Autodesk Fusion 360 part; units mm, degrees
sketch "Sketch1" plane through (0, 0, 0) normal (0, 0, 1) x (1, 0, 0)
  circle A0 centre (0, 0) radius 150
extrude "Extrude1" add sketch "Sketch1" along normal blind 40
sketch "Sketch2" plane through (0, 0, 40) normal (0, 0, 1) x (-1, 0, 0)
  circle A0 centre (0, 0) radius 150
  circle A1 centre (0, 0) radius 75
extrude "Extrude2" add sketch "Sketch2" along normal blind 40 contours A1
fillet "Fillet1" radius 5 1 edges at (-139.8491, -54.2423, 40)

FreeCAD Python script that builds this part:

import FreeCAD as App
import Part
import Sketcher
from FreeCAD import Vector


def edges_at(feature, points):
    """Names of the edges that pass closest to the given points."""
    edges = feature.Shape.Edges
    near = lambda p: min(range(len(edges)), key=lambda i: edges[i].distToShape(Part.Vertex(*p))[0])
    return sorted({f"Edge{near(p) + 1}" for p in points})

doc = App.newDocument("Part")
body = doc.addObject("PartDesign::Body", "Body")

sketch1 = doc.addObject("Sketcher::SketchObject", "Sketch")
body.addObject(sketch1)
sketch1.AttachmentSupport = (doc.XY_Plane, [""])
sketch1.MapMode = "FlatFace"
sketch1.addGeometry(Part.Circle(Vector(0, 0, 0), Vector(0, 0, 1), 150), False)
sketch1.addConstraint([
    Sketcher.Constraint("Coincident", 0, 3, -1, 1),
    Sketcher.Constraint("Diameter", 0, 300.0),
])
pad1 = doc.addObject("PartDesign::Pad", "Pad")
body.addObject(pad1)
pad1.Profile = sketch1
pad1.Length = 40

sketch2 = doc.addObject("Sketcher::SketchObject", "Sketch001")
body.addObject(sketch2)
sketch2.AttachmentSupport = (doc.XY_Plane, [""])
sketch2.MapMode = "FlatFace"
sketch2.AttachmentOffset = App.Placement(Vector(0, 0, 40), App.Rotation())
sketch2.addGeometry(Part.Circle(Vector(0, 0, 0), Vector(0, 0, 1), 75), False)
sketch2.addConstraint([
    Sketcher.Constraint("Coincident", 0, 3, -1, 1),
    Sketcher.Constraint("Diameter", 0, 150.0),
])
pad2 = doc.addObject("PartDesign::Pad", "Pad001")
body.addObject(pad2)
pad2.Profile = sketch2
pad2.Length = 40
doc.recompute()

fillet = doc.addObject("PartDesign::Fillet", "Fillet")
body.addObject(fillet)
fillet.Base = (pad2, edges_at(pad2, [(-139.849, -54.242, 40)]))
fillet.Radius = 5

doc.recompute()
